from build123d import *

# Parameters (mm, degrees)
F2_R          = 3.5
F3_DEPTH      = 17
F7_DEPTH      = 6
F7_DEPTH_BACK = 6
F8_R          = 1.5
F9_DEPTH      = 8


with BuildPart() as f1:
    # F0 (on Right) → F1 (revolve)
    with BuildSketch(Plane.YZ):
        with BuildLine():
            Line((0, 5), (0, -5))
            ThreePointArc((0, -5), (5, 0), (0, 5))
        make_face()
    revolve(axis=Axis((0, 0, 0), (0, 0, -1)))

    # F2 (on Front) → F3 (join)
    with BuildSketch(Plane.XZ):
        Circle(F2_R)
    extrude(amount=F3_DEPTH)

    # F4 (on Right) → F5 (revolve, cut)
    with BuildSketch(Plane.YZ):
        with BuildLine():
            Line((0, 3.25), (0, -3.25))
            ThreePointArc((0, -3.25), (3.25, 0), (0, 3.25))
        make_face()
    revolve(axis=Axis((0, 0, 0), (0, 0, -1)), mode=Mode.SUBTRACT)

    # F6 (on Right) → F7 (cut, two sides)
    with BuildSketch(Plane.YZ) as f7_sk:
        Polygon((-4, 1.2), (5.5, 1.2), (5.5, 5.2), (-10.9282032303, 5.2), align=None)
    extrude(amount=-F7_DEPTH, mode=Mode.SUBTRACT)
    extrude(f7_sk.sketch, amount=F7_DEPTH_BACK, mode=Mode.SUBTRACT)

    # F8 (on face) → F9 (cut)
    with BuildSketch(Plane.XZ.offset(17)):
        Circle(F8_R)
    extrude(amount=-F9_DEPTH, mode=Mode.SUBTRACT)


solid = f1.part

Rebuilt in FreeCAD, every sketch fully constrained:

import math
import FreeCAD as App
import Part
import Sketcher

V = App.Vector
Q = App.Units.Quantity


def add_polygon(sketch, points):
    """Adds a closed chain of lines whose ends are joined by coincident constraints."""
    first, n = sketch.GeometryCount, len(points)
    for a, b in zip(points, points[1:] + points[:1]):
        sketch.addGeometry(Part.LineSegment(App.Vector(*a, 0), App.Vector(*b, 0)), False)
    for i in range(n):
        sketch.addConstraint(Sketcher.Constraint("Coincident", first + i, 2, first + (i + 1) % n, 1))

doc = App.newDocument("Part")
body = doc.addObject("PartDesign::Body", "Body")

sketch1 = body.newObject("Sketcher::SketchObject", "Sketch")
sketch1.AttachmentSupport = (doc.getObject("YZ_Plane"), [""])
sketch1.MapMode = "FlatFace"
sketch1.addGeometry(Part.LineSegment(V(0, 5, 0), V(0, -5, 0)), False)
sketch1.addGeometry(Part.ArcOfCircle(Part.Circle(V(0, 0, 0), V(0, 0, 1), 5), math.radians(-90), math.radians(90)), False)
sketch1.addConstraint(Sketcher.Constraint("Coincident", 0, 1, 1, 2))
sketch1.addConstraint(Sketcher.Constraint("Coincident", 1, 1, 0, 2))
sketch1.addConstraint(Sketcher.Constraint("Vertical", 0))
sketch1.addConstraint(Sketcher.Constraint("Coincident", 1, 3, -1, 1))
sketch1.addConstraint(Sketcher.Constraint("PointOnObject", 0, 1, -2))
sketch1.addConstraint(Sketcher.Constraint("Radius", 1, 5.0))
revolution = body.newObject("PartDesign::Revolution", "Revolution")
revolution.Profile = sketch1
revolution.ReferenceAxis = (sketch1, ["V_Axis"])
revolution.Angle = 360

sketch2 = body.newObject("Sketcher::SketchObject", "Sketch001")
sketch2.AttachmentSupport = (doc.getObject("XZ_Plane"), [""])
sketch2.MapMode = "FlatFace"
sketch2.addGeometry(Part.Circle(V(0, 0, 0), V(0, 0, 1), 3.5), False)
sketch2.addConstraint(Sketcher.Constraint("Coincident", 0, 3, -1, 1))
sketch2.addConstraint(Sketcher.Constraint("Diameter", 0, 7.0))
pad1 = body.newObject("PartDesign::Pad", "Pad")
pad1.Profile = sketch2
pad1.Length = 17

sketch3 = body.newObject("Sketcher::SketchObject", "Sketch002")
sketch3.AttachmentSupport = (doc.getObject("YZ_Plane"), [""])
sketch3.MapMode = "FlatFace"
sketch3.addGeometry(Part.LineSegment(V(0, 3.2, 0), V(0, -3.2, 0)), False)
sketch3.addGeometry(Part.ArcOfCircle(Part.Circle(V(0, 0, 0), V(0, 0, 1), 3.2), math.radians(-90), math.radians(90)), False)
sketch3.addConstraint(Sketcher.Constraint("Coincident", 0, 1, 1, 2))
sketch3.addConstraint(Sketcher.Constraint("Coincident", 1, 1, 0, 2))
sketch3.addConstraint(Sketcher.Constraint("Vertical", 0))
sketch3.addConstraint(Sketcher.Constraint("Coincident", 1, 3, -1, 1))
sketch3.addConstraint(Sketcher.Constraint("PointOnObject", 0, 1, -2))
sketch3.addConstraint(Sketcher.Constraint("Radius", 1, 3.25))
groove = body.newObject("PartDesign::Groove", "Groove")
groove.Profile = sketch3
groove.ReferenceAxis = (sketch3, ["V_Axis"])
groove.Angle = 360

sketch4 = body.newObject("Sketcher::SketchObject", "Sketch003")
sketch4.AttachmentSupport = (doc.getObject("YZ_Plane"), [""])
sketch4.MapMode = "FlatFace"
add_polygon(sketch4, [(-4, 1.2), (5.5, 1.2), (5.5, 5.2), (-10.9, 5.2)])
sketch4.addConstraint(Sketcher.Constraint("Horizontal", 0))
sketch4.addConstraint(Sketcher.Constraint("Vertical", 1))
sketch4.addConstraint(Sketcher.Constraint("Horizontal", 2))
sketch4.addConstraint(Sketcher.Constraint("DistanceY", 1, 1, 1, 2, 4.0))
sketch4.addConstraint(Sketcher.Constraint("Angle", 3, Q("-30 deg")))
sketch4.addConstraint(Sketcher.Constraint("DistanceX", 0, 1, 0, 2, 9.5))
sketch4.addConstraint(Sketcher.Constraint("DistanceX", 3, 2, -1, 1, 4.0))
sketch4.addConstraint(Sketcher.Constraint("DistanceY", -1, 1, 0, 2, 1.2))
pocket1 = body.newObject("PartDesign::Pocket", "Pocket")
pocket1.Profile = sketch4
pocket1.Type = "ThroughAll"
pocket1.Midplane = True

sketch5 = body.newObject("Sketcher::SketchObject", "Sketch004")
sketch5.AttachmentSupport = (doc.getObject("XZ_Plane"), [""])
sketch5.MapMode = "FlatFace"
sketch5.AttachmentOffset = App.Placement(V(0, 0, 17), App.Rotation())
sketch5.addGeometry(Part.Circle(V(0, 0, 0), V(0, 0, 1), 1.5), False)
sketch5.addConstraint(Sketcher.Constraint("Coincident", 0, 3, -1, 1))
sketch5.addConstraint(Sketcher.Constraint("Diameter", 0, 3.0))
pocket2 = body.newObject("PartDesign::Pocket", "Pocket001")
pocket2.Profile = sketch5
pocket2.Length = 8

doc.recompute()
